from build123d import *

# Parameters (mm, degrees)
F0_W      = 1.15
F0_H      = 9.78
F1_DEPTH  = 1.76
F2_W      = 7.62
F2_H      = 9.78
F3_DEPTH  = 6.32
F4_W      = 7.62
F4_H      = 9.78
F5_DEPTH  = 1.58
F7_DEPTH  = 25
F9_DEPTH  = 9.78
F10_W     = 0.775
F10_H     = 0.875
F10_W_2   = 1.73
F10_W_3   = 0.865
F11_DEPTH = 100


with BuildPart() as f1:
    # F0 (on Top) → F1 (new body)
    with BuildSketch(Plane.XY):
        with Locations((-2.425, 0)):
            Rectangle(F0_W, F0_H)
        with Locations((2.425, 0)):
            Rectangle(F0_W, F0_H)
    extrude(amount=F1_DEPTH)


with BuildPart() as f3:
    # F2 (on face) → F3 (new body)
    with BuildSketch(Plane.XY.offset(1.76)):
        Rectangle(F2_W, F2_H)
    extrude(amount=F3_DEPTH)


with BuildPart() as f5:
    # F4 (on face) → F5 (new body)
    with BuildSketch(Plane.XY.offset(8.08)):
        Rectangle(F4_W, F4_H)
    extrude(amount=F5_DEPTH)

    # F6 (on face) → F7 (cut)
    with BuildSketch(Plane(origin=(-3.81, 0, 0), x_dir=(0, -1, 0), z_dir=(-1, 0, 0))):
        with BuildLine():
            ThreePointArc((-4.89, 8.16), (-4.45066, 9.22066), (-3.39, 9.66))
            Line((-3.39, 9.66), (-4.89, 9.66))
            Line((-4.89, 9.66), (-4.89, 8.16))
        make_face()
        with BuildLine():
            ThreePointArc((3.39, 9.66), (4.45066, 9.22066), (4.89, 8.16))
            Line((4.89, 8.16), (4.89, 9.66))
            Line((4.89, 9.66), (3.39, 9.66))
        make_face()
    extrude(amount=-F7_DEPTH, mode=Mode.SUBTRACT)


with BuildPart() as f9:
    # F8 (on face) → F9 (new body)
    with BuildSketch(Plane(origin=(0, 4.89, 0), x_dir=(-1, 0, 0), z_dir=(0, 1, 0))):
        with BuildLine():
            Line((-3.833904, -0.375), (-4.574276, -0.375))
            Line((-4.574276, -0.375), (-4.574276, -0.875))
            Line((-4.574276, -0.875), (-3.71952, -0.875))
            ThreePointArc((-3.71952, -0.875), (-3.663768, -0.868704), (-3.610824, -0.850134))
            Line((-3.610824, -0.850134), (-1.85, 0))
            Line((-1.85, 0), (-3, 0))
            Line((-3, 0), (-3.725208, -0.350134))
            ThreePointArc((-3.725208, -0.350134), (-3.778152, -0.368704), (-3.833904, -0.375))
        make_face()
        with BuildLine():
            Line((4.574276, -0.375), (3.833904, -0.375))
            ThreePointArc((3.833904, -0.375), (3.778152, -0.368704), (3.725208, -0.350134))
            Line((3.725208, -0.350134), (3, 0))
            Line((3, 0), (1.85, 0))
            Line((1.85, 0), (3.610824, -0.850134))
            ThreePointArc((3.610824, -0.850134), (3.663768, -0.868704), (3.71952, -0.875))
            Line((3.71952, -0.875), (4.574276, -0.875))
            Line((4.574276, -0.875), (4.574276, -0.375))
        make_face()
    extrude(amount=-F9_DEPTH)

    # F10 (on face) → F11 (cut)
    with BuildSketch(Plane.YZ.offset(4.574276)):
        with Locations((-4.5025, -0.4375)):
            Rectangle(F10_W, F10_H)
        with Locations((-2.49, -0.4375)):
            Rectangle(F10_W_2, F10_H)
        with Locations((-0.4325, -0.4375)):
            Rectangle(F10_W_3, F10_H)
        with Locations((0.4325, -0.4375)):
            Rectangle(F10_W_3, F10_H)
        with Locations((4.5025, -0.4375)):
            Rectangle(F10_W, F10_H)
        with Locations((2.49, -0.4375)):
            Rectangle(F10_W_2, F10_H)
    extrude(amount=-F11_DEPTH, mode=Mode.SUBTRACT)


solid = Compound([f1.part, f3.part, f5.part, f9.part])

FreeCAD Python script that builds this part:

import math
import FreeCAD as App
import Part
import Sketcher


def add_polygon(sketch, points):
    """Adds a closed chain of lines whose ends are joined by coincident constraints."""
    first, n = sketch.GeometryCount, len(points)
    for a, b in zip(points, points[1:] + points[:1]):
        sketch.addGeometry(Part.LineSegment(App.Vector(*a, 0), App.Vector(*b, 0)), False)
    for i in range(n):
        sketch.addConstraint(Sketcher.Constraint("Coincident", first + i, 2, first + (i + 1) % n, 1))

doc = App.newDocument("Part")
body = doc.addObject("PartDesign::Body", "Body")
body.AllowCompound = True

sketch1 = body.newObject("Sketcher::SketchObject", "Sketch")
sketch1.AttachmentSupport = (doc.getObject("XY_Plane"), [""])
sketch1.MapMode = "FlatFace"
add_polygon(sketch1, [(-3, 4.9), (-3, -4.9), (-1.9, -4.9), (-1.9, 4.9)])
add_polygon(sketch1, [(1.9, 4.9), (1.9, -4.9), (3, -4.9), (3, 4.9)])
sketch1.addConstraint(Sketcher.Constraint("Vertical", 0))
sketch1.addConstraint(Sketcher.Constraint("Horizontal", 1))
sketch1.addConstraint(Sketcher.Constraint("Vertical", 2))
sketch1.addConstraint(Sketcher.Constraint("Horizontal", 3))
sketch1.addConstraint(Sketcher.Constraint("Vertical", 4))
sketch1.addConstraint(Sketcher.Constraint("Horizontal", 5))
sketch1.addConstraint(Sketcher.Constraint("Vertical", 6))
sketch1.addConstraint(Sketcher.Constraint("Horizontal", 7))
sketch1.addConstraint(Sketcher.Constraint("Symmetric", 2, 2, 4, 2, -1, 1))
sketch1.addConstraint(Sketcher.Constraint("Symmetric", 0, 2, 6, 2, -1, 1))
sketch1.addConstraint(Sketcher.Constraint("Horizontal", 1, 2, 4, 2))
sketch1.addConstraint(Sketcher.Constraint("DistanceX", 0, 2, -1, 1, 3.0))
sketch1.addConstraint(Sketcher.Constraint("DistanceX", 1, 1, 1, 2, 1.15))
sketch1.addConstraint(Sketcher.Constraint("DistanceY", 0, 2, 0, 1, 9.78))
pad1 = body.newObject("PartDesign::Pad", "Pad")
pad1.Profile = sketch1
pad1.Length = 1.76
body2 = doc.addObject("PartDesign::Body", "Body001")

sketch2 = body2.newObject("Sketcher::SketchObject", "Sketch001")
sketch2.AttachmentSupport = (doc.getObject("XY_Plane001"), [""])
sketch2.MapMode = "FlatFace"
sketch2.AttachmentOffset = App.Placement(App.Vector(0, 0, 1.76), App.Rotation())
add_polygon(sketch2, [(-4, 5), (-4, -5), (4, -5), (4, 5)])
sketch2.addConstraint(Sketcher.Constraint("Vertical", 0))
sketch2.addConstraint(Sketcher.Constraint("Horizontal", 1))
sketch2.addConstraint(Sketcher.Constraint("Vertical", 2))
sketch2.addConstraint(Sketcher.Constraint("Horizontal", 3))
sketch2.addConstraint(Sketcher.Constraint("Symmetric", 0, 2, 2, 2, -1, 1))
sketch2.addConstraint(Sketcher.Constraint("DistanceX", 1, 1, 1, 2, 7.62))
sketch2.addConstraint(Sketcher.Constraint("DistanceY", 0, 2, 0, 1, 9.78))
pad2 = body2.newObject("PartDesign::Pad", "Pad001")
pad2.Profile = sketch2
pad2.Length = 6.32
body3 = doc.addObject("PartDesign::Body", "Body002")

sketch3 = body3.newObject("Sketcher::SketchObject", "Sketch002")
sketch3.AttachmentSupport = (doc.getObject("XY_Plane002"), [""])
sketch3.MapMode = "FlatFace"
sketch3.AttachmentOffset = App.Placement(App.Vector(0, 0, 8.08), App.Rotation())
add_polygon(sketch3, [(-4, 5), (-4, -5), (4, -5), (4, 5)])
sketch3.addConstraint(Sketcher.Constraint("Vertical", 0))
sketch3.addConstraint(Sketcher.Constraint("Horizontal", 1))
sketch3.addConstraint(Sketcher.Constraint("Vertical", 2))
sketch3.addConstraint(Sketcher.Constraint("Horizontal", 3))
sketch3.addConstraint(Sketcher.Constraint("Symmetric", 0, 2, 2, 2, -1, 1))
sketch3.addConstraint(Sketcher.Constraint("DistanceX", 1, 1, 1, 2, 7.62))
sketch3.addConstraint(Sketcher.Constraint("DistanceY", 0, 2, 0, 1, 9.78))
pad3 = body3.newObject("PartDesign::Pad", "Pad002")
pad3.Profile = sketch3
pad3.Length = 1.58

sketch4 = body3.newObject("Sketcher::SketchObject", "Sketch003")
sketch4.AttachmentSupport = (doc.getObject("YZ_Plane002"), [""])
sketch4.MapMode = "FlatFace"
sketch4.AttachmentOffset = App.Placement(App.Vector(0, 0, -3.81), App.Rotation())
sketch4.addGeometry(Part.ArcOfCircle(Part.Circle(App.Vector(3.4, 8.2, 0), App.Vector(0, 0, 1), 1.5), math.radians(0), math.radians(90)), False)
sketch4.addGeometry(Part.LineSegment(App.Vector(3.4, 9.7, 0), App.Vector(4.9, 9.7, 0)), False)
sketch4.addGeometry(Part.LineSegment(App.Vector(4.9, 9.7, 0), App.Vector(4.9, 8.2, 0)), False)
sketch4.addGeometry(Part.ArcOfCircle(Part.Circle(App.Vector(-3.4, 8.2, 0), App.Vector(0, 0, 1), 1.5), math.radians(90), math.radians(180)), False)
sketch4.addGeometry(Part.LineSegment(App.Vector(-4.9, 8.2, 0), App.Vector(-4.9, 9.7, 0)), False)
sketch4.addGeometry(Part.LineSegment(App.Vector(-4.9, 9.7, 0), App.Vector(-3.4, 9.7, 0)), False)
sketch4.addConstraint(Sketcher.Constraint("Tangent", 0, 2, 1, 1))
sketch4.addConstraint(Sketcher.Constraint("Coincident", 1, 2, 2, 1))
sketch4.addConstraint(Sketcher.Constraint("Tangent", 2, 2, 0, 1))
sketch4.addConstraint(Sketcher.Constraint("Tangent", 3, 2, 4, 1))
sketch4.addConstraint(Sketcher.Constraint("Coincident", 4, 2, 5, 1))
sketch4.addConstraint(Sketcher.Constraint("Tangent", 5, 2, 3, 1))
sketch4.addConstraint(Sketcher.Constraint("Horizontal", 1))
sketch4.addConstraint(Sketcher.Constraint("Vertical", 2))
sketch4.addConstraint(Sketcher.Constraint("Vertical", 4))
sketch4.addConstraint(Sketcher.Constraint("Horizontal", 5))
sketch4.addConstraint(Sketcher.Constraint("Equal", 0, 3))
sketch4.addConstraint(Sketcher.Constraint("Symmetric", 0, 3, 3, 3, -2))
sketch4.addConstraint(Sketcher.Constraint("Radius", 0, 1.500001))
sketch4.addConstraint(Sketcher.Constraint("DistanceX", -1, 1, 0, 3, 3.389999))
sketch4.addConstraint(Sketcher.Constraint("DistanceY", -1, 1, 0, 3, 8.159999))
pocket1 = body3.newObject("PartDesign::Pocket", "Pocket")
pocket1.Profile = sketch4
pocket1.Length = 25
pocket1.Reversed = True
body4 = doc.addObject("PartDesign::Body", "Body003")
body4.AllowCompound = True

sketch5 = body4.newObject("Sketcher::SketchObject", "Sketch004")
sketch5.AttachmentSupport = (doc.getObject("XZ_Plane003"), [""])
sketch5.MapMode = "FlatFace"
sketch5.AttachmentOffset = App.Placement(App.Vector(0, 0, -4.89), App.Rotation())
sketch5.addGeometry(Part.LineSegment(App.Vector(3.83, -0.38, 0), App.Vector(4.57, -0.38, 0)), False)
sketch5.addGeometry(Part.LineSegment(App.Vector(4.57, -0.38, 0), App.Vector(4.57, -0.88, 0)), False)
sketch5.addGeometry(Part.LineSegment(App.Vector(4.57, -0.88, 0), App.Vector(3.72, -0.88, 0)), False)
sketch5.addGeometry(Part.ArcOfCircle(Part.Circle(App.Vector(3.72, -0.62, 0), App.Vector(0, 0, 1), 0.25), math.radians(-116), math.radians(-90)), False)
sketch5.addGeometry(Part.LineSegment(App.Vector(3.61, -0.85, 0), App.Vector(1.85, 0, 0)), False)
sketch5.addGeometry(Part.LineSegment(App.Vector(1.85, 0, 0), App.Vector(3, 0, 0)), False)
sketch5.addGeometry(Part.LineSegment(App.Vector(3, 0, 0), App.Vector(3.73, -0.35, 0)), False)
sketch5.addGeometry(Part.ArcOfCircle(Part.Circle(App.Vector(3.83, -0.12, 0), App.Vector(0, 0, 1), 0.25), math.radians(-116), math.radians(-90)), False)
sketch5.addGeometry(Part.LineSegment(App.Vector(-4.57, -0.38, 0), App.Vector(-3.83, -0.38, 0)), False)
sketch5.addGeometry(Part.ArcOfCircle(Part.Circle(App.Vector(-3.83, -0.12, 0), App.Vector(0, 0, 1), 0.25), math.radians(-90), math.radians(-64)), False)
sketch5.addGeometry(Part.LineSegment(App.Vector(-3.73, -0.35, 0), App.Vector(-3, 0, 0)), False)
sketch5.addGeometry(Part.LineSegment(App.Vector(-3, 0, 0), App.Vector(-1.85, 0, 0)), False)
sketch5.addGeometry(Part.LineSegment(App.Vector(-1.85, 0, 0), App.Vector(-3.61, -0.85, 0)), False)
sketch5.addGeometry(Part.ArcOfCircle(Part.Circle(App.Vector(-3.72, -0.62, 0), App.Vector(0, 0, 1), 0.25), math.radians(-90), math.radians(-64)), False)
sketch5.addGeometry(Part.LineSegment(App.Vector(-3.72, -0.88, 0), App.Vector(-4.57, -0.88, 0)), False)
sketch5.addGeometry(Part.LineSegment(App.Vector(-4.57, -0.88, 0), App.Vector(-4.57, -0.38, 0)), False)
sketch5.addConstraint(Sketcher.Constraint("Coincident", 0, 2, 1, 1))
sketch5.addConstraint(Sketcher.Constraint("Coincident", 1, 2, 2, 1))
sketch5.addConstraint(Sketcher.Constraint("Coincident", 2, 2, 3, 2))
sketch5.addConstraint(Sketcher.Constraint("Coincident", 3, 1, 4, 1))
sketch5.addConstraint(Sketcher.Constraint("Coincident", 4, 2, 5, 1))
sketch5.addConstraint(Sketcher.Constraint("Coincident", 5, 2, 6, 1))
sketch5.addConstraint(Sketcher.Constraint("Coincident", 6, 2, 7, 1))
sketch5.addConstraint(Sketcher.Constraint("Coincident", 7, 2, 0, 1))
sketch5.addConstraint(Sketcher.Constraint("Coincident", 8, 2, 9, 1))
sketch5.addConstraint(Sketcher.Constraint("Coincident", 9, 2, 10, 1))
sketch5.addConstraint(Sketcher.Constraint("Coincident", 10, 2, 11, 1))
sketch5.addConstraint(Sketcher.Constraint("Coincident", 11, 2, 12, 1))
sketch5.addConstraint(Sketcher.Constraint("Coincident", 12, 2, 13, 2))
sketch5.addConstraint(Sketcher.Constraint("Coincident", 13, 1, 14, 1))
sketch5.addConstraint(Sketcher.Constraint("Coincident", 14, 2, 15, 1))
sketch5.addConstraint(Sketcher.Constraint("Coincident", 15, 2, 8, 1))
sketch5.addConstraint(Sketcher.Constraint("Horizontal", 0))
sketch5.addConstraint(Sketcher.Constraint("Vertical", 1))
sketch5.addConstraint(Sketcher.Constraint("Horizontal", 2))
sketch5.addConstraint(Sketcher.Constraint("Horizontal", 5))
sketch5.addConstraint(Sketcher.Constraint("Horizontal", 8))
sketch5.addConstraint(Sketcher.Constraint("Horizontal", 11))
sketch5.addConstraint(Sketcher.Constraint("Horizontal", 14))
sketch5.addConstraint(Sketcher.Constraint("Vertical", 15))
sketch5.addConstraint(Sketcher.Constraint("Equal", 3, 7))
sketch5.addConstraint(Sketcher.Constraint("Equal", 7, 9))
sketch5.addConstraint(Sketcher.Constraint("Equal", 9, 13))
sketch5.addConstraint(Sketcher.Constraint("Symmetric", 5, 2, 10, 2, -1, 1))
sketch5.addConstraint(Sketcher.Constraint("Symmetric", 7, 3, 9, 3, -2))
sketch5.addConstraint(Sketcher.Constraint("Symmetric", 3, 3, 13, 3, -2))
sketch5.addConstraint(Sketcher.Constraint("Symmetric", 4, 2, 11, 2, -2))
sketch5.addConstraint(Sketcher.Constraint("Parallel", 4, 6))
sketch5.addConstraint(Sketcher.Constraint("Horizontal", 6, 2, 9, 2))
sketch5.addConstraint(Sketcher.Constraint("Horizontal", 3, 1, 12, 2))
sketch5.addConstraint(Sketcher.Constraint("Vertical", 3, 3, 2, 2))
sketch5.addConstraint(Sketcher.Constraint("Vertical", 9, 3, 8, 2))
sketch5.addConstraint(Sketcher.Constraint("Equal", 0, 8))
sketch5.addConstraint(Sketcher.Constraint("Equal", 2, 14))
sketch5.addConstraint(Sketcher.Constraint("DistanceY", 1, 2, 1, 1, 0.5))
sketch5.addConstraint(Sketcher.Constraint("DistanceX", -1, 1, 5, 2, 3.0))
sketch5.addConstraint(Sketcher.Constraint("DistanceX", 5, 1, 5, 2, 1.15))
sketch5.addConstraint(Sketcher.Constraint("DistanceY", 3, 1, 6, 2, 0.5))
sketch5.addConstraint(Sketcher.Constraint("Radius", 3, 0.250011))
sketch5.addConstraint(Sketcher.Constraint("DistanceY", 0, 2, -1, 1, 0.375))
sketch5.addConstraint(Sketcher.Constraint("DistanceX", 0, 1, 0, 2, 0.740372))
sketch5.addConstraint(Sketcher.Constraint("DistanceX", 2, 2, 2, 1, 0.854756))
sketch5.addConstraint(Sketcher.Constraint("DistanceX", -1, 1, 3, 3, 3.719522))
sketch5.addConstraint(Sketcher.Constraint("DistanceX", 9, 2, -1, 1, 3.725208))
pad4 = body4.newObject("PartDesign::Pad", "Pad003")
pad4.Profile = sketch5
pad4.Length = 9.78

sketch6 = body4.newObject("Sketcher::SketchObject", "Sketch005")
sketch6.AttachmentSupport = (doc.getObject("YZ_Plane003"), [""])
sketch6.MapMode = "FlatFace"
sketch6.AttachmentOffset = App.Placement(App.Vector(0, 0, 4.574276), App.Rotation())
add_polygon(sketch6, [(-4.9, 0), (-4.9, -0.9), (-4.1, -0.9), (-4.1, 0)])
add_polygon(sketch6, [(-3.4, 0), (-3.4, -0.9), (-1.6, -0.9), (-1.6, 0)])
add_polygon(sketch6, [(-0.9, 0), (-0.9, -0.9), (0.9, -0.9), (0.9, 0)])
add_polygon(sketch6, [(4.1, 0), (4.1, -0.9), (4.9, -0.9), (4.9, 0)])
add_polygon(sketch6, [(1.6, 0), (1.6, -0.9), (3.4, -0.9), (3.4, 0)])
sketch6.addConstraint(Sketcher.Constraint("Vertical", 0))
sketch6.addConstraint(Sketcher.Constraint("Horizontal", 1))
sketch6.addConstraint(Sketcher.Constraint("Vertical", 2))
sketch6.addConstraint(Sketcher.Constraint("Horizontal", 3))
sketch6.addConstraint(Sketcher.Constraint("Vertical", 4))
sketch6.addConstraint(Sketcher.Constraint("Horizontal", 5))
sketch6.addConstraint(Sketcher.Constraint("Vertical", 6))
sketch6.addConstraint(Sketcher.Constraint("Horizontal", 7))
sketch6.addConstraint(Sketcher.Constraint("Vertical", 8))
sketch6.addConstraint(Sketcher.Constraint("Horizontal", 9))
sketch6.addConstraint(Sketcher.Constraint("Vertical", 10))
sketch6.addConstraint(Sketcher.Constraint("Horizontal", 11))
sketch6.addConstraint(Sketcher.Constraint("Vertical", 12))
sketch6.addConstraint(Sketcher.Constraint("Horizontal", 13))
sketch6.addConstraint(Sketcher.Constraint("Vertical", 14))
sketch6.addConstraint(Sketcher.Constraint("Horizontal", 15))
sketch6.addConstraint(Sketcher.Constraint("Vertical", 16))
sketch6.addConstraint(Sketcher.Constraint("Horizontal", 17))
sketch6.addConstraint(Sketcher.Constraint("Vertical", 18))
sketch6.addConstraint(Sketcher.Constraint("Horizontal", 19))
sketch6.addConstraint(Sketcher.Constraint("Symmetric", 10, 2, 11, 2, -1, 1))
sketch6.addConstraint(Sketcher.Constraint("Symmetric", 3, 2, 14, 2, -1, 1))
sketch6.addConstraint(Sketcher.Constraint("Symmetric", 7, 2, 18, 2, -1, 1))
sketch6.addConstraint(Sketcher.Constraint("Symmetric", 1, 2, 12, 2, -2))
sketch6.addConstraint(Sketcher.Constraint("Symmetric", 5, 2, 16, 2, -2))
sketch6.addConstraint(Sketcher.Constraint("PointOnObject", 2, 2, -1))
sketch6.addConstraint(Sketcher.Constraint("PointOnObject", 6, 2, -1))
sketch6.addConstraint(Sketcher.Constraint("Horizontal", 1, 2, 4, 2))
sketch6.addConstraint(Sketcher.Constraint("Horizontal", 5, 2, 8, 2))
sketch6.addConstraint(Sketcher.Constraint("Equal", 7, 9))
sketch6.addConstraint(Sketcher.Constraint("DistanceX", 5, 1, 5, 2, 1.73))
sketch6.addConstraint(Sketcher.Constraint("DistanceX", 1, 1, 1, 2, 0.775))
sketch6.addConstraint(Sketcher.Constraint("DistanceY", 0, 2, 0, 1, 0.875))
sketch6.addConstraint(Sketcher.Constraint("DistanceX", 0, 2, -1, 1, 4.89))
sketch6.addConstraint(Sketcher.Constraint("DistanceX", 1, 2, 4, 2, 0.76))
pocket2 = body4.newObject("PartDesign::Pocket", "Pocket001")
pocket2.Profile = sketch6
pocket2.Length = 100

doc.recompute()
